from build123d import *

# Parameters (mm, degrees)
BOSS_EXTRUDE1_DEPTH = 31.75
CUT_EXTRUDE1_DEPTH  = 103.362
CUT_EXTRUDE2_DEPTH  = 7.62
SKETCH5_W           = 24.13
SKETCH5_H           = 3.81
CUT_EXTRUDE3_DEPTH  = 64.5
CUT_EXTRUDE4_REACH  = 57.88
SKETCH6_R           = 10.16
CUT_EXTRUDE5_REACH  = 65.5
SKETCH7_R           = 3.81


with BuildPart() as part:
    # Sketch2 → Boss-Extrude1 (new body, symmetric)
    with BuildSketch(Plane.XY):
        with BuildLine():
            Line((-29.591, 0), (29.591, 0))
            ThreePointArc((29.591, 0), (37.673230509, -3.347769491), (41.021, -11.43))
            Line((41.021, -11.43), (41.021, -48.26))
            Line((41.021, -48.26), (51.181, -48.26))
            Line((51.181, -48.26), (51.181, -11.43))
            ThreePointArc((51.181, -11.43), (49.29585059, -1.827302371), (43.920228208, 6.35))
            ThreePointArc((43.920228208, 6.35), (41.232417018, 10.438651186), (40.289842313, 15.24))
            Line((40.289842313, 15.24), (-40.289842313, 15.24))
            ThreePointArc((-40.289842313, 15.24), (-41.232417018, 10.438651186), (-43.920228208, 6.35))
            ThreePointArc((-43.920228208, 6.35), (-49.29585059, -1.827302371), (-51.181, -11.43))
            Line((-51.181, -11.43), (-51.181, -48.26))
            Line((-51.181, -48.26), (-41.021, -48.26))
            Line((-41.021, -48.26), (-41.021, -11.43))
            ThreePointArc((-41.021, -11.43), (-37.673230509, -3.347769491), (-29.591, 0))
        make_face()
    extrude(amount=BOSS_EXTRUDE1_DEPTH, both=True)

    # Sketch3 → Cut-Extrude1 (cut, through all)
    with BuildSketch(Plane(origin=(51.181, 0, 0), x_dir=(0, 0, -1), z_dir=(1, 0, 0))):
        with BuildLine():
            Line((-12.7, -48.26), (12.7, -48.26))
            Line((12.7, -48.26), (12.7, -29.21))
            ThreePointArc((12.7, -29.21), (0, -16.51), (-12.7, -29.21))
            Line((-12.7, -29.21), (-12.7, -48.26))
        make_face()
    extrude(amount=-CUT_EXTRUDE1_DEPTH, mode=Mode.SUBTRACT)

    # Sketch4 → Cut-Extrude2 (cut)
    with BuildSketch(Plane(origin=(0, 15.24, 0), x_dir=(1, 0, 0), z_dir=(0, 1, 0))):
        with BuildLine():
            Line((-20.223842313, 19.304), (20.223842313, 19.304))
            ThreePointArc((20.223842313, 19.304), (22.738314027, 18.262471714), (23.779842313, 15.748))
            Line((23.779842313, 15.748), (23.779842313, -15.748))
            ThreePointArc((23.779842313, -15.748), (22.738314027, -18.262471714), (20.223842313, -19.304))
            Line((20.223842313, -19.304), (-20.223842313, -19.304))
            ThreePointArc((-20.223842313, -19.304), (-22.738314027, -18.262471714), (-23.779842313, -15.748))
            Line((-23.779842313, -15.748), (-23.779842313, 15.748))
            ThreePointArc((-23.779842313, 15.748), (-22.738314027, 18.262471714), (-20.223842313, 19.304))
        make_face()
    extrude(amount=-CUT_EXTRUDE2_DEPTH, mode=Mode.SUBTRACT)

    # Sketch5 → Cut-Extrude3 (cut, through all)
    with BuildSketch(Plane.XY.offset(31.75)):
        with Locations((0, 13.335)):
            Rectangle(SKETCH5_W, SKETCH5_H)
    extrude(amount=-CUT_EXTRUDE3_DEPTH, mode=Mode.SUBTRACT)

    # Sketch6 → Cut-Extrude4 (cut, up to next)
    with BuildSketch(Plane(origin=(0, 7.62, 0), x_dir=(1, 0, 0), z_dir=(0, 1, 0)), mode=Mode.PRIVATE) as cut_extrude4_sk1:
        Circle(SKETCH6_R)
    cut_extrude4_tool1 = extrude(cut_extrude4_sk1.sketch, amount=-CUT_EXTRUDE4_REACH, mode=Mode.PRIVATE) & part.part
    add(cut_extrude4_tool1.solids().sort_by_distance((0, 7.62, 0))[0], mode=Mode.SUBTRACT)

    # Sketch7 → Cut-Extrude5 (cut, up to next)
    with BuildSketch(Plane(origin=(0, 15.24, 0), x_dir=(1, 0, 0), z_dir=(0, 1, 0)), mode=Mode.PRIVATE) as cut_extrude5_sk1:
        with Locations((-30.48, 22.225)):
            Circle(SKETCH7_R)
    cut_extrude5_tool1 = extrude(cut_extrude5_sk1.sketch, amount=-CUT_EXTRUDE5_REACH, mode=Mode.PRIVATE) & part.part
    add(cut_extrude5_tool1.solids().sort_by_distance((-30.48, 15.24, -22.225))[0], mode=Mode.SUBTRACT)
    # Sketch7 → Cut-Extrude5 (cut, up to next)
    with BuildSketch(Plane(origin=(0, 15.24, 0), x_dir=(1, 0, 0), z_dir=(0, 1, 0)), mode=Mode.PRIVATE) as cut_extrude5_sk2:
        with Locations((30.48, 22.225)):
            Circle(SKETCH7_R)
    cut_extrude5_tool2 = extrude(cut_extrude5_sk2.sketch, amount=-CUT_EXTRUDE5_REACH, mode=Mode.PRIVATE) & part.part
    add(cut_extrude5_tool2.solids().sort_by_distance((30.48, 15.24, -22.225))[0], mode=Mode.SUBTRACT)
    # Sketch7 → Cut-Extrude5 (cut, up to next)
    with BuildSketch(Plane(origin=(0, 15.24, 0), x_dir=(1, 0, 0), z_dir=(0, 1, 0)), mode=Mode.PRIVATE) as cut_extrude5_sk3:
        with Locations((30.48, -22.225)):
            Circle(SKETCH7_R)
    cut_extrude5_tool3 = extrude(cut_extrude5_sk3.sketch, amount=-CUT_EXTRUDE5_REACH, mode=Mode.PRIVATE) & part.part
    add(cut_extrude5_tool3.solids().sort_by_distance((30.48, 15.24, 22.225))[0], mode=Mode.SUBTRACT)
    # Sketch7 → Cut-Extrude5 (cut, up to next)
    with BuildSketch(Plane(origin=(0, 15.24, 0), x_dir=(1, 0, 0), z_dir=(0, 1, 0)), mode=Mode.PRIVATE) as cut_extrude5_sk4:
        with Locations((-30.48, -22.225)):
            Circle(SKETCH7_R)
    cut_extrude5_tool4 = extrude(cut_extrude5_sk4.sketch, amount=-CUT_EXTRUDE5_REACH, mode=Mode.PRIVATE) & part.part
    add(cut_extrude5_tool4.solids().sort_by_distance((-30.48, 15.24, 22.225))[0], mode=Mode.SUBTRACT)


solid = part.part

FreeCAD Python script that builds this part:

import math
import FreeCAD as App
import Part
import Sketcher
Q = App.Units.Quantity

doc = App.newDocument("Part")
body = doc.addObject("PartDesign::Body", "Body")

sketch1 = doc.addObject("Sketcher::SketchObject", "Sketch")
body.addObject(sketch1)
sketch1.AttachmentSupport = (doc.XY_Plane, [""])
sketch1.MapMode = "FlatFace"
sketch1.addGeometry([
    Part.LineSegment(App.Vector(-29.591, 0, 0), App.Vector(29.591, 0, 0)),
    Part.ArcOfCircle(Part.Circle(App.Vector(29.591, -11.43, 0), App.Vector(0, 0, 1), 11.43), math.radians(0), math.radians(90)),
    Part.LineSegment(App.Vector(41.021, -11.43, 0), App.Vector(41.021, -48.26, 0)),
    Part.LineSegment(App.Vector(41.021, -48.26, 0), App.Vector(51.181, -48.26, 0)),
    Part.LineSegment(App.Vector(51.181, -48.26, 0), App.Vector(51.181, -11.43, 0)),
    Part.ArcOfCircle(Part.Circle(App.Vector(25.781, -11.43, 0), App.Vector(0, 0, 1), 25.4), math.radians(0), math.radians(44.427004)),
    Part.ArcOfCircle(Part.Circle(App.Vector(52.989842, 15.24, 0), App.Vector(0, 0, 1), 12.7), math.radians(180), math.radians(224.427004)),
    Part.LineSegment(App.Vector(40.289842, 15.24, 0), App.Vector(-40.289842, 15.24, 0)),
    Part.ArcOfCircle(Part.Circle(App.Vector(-52.989842, 15.24, 0), App.Vector(0, 0, 1), 12.7), math.radians(-44.427004), math.radians(0)),
    Part.ArcOfCircle(Part.Circle(App.Vector(-25.781, -11.43, 0), App.Vector(0, 0, 1), 25.4), math.radians(135.572996), math.radians(180)),
    Part.LineSegment(App.Vector(-51.181, -11.43, 0), App.Vector(-51.181, -48.26, 0)),
    Part.LineSegment(App.Vector(-51.181, -48.26, 0), App.Vector(-41.021, -48.26, 0)),
    Part.LineSegment(App.Vector(-41.021, -48.26, 0), App.Vector(-41.021, -11.43, 0)),
    Part.ArcOfCircle(Part.Circle(App.Vector(-29.591, -11.43, 0), App.Vector(0, 0, 1), 11.43), math.radians(90), math.radians(180)),
], False)
sketch1.addConstraint([
    Sketcher.Constraint("Tangent", 0, 2, 1, 2),
    Sketcher.Constraint("Tangent", 1, 1, 2, 1),
    Sketcher.Constraint("Coincident", 2, 2, 3, 1),
    Sketcher.Constraint("Coincident", 3, 2, 4, 1),
    Sketcher.Constraint("Tangent", 4, 2, 5, 1),
    Sketcher.Constraint("Tangent", 5, 2, 6, 2),
    Sketcher.Constraint("Coincident", 6, 1, 7, 1),
    Sketcher.Constraint("Coincident", 7, 2, 8, 2),
    Sketcher.Constraint("Tangent", 8, 1, 9, 1),
    Sketcher.Constraint("Tangent", 9, 2, 10, 1),
    Sketcher.Constraint("Coincident", 10, 2, 11, 1),
    Sketcher.Constraint("Coincident", 11, 2, 12, 1),
    Sketcher.Constraint("Tangent", 12, 2, 13, 2),
    Sketcher.Constraint("Tangent", 13, 1, 0, 1),
    Sketcher.Constraint("Horizontal", 0),
    Sketcher.Constraint("Vertical", 2),
    Sketcher.Constraint("Horizontal", 3),
    Sketcher.Constraint("Vertical", 4),
    Sketcher.Constraint("Horizontal", 7),
    Sketcher.Constraint("Vertical", 10),
    Sketcher.Constraint("Horizontal", 11),
    Sketcher.Constraint("Vertical", 12),
    Sketcher.Constraint("Equal", 6, 8),
    Sketcher.Constraint("Equal", 5, 9),
    Sketcher.Constraint("Equal", 1, 13),
    Sketcher.Constraint("Symmetric", 0, 2, 13, 1, -1, 1),
    Sketcher.Constraint("Symmetric", 6, 3, 8, 3, -2),
    Sketcher.Constraint("Symmetric", 3, 2, 10, 2, -2),
    Sketcher.Constraint("Horizontal", 1, 3, 5, 3),
    Sketcher.Constraint("Horizontal", 8, 3, 6, 1),
    Sketcher.Constraint("Radius", 5, Q("1 in")),
    Sketcher.Constraint("Radius", 6, Q("0.5 in")),
    Sketcher.Constraint("Radius", 1, Q("0.45 in")),
    Sketcher.Constraint("DistanceX", 3, 1, 3, 2, Q("0.4 in")),
    Sketcher.Constraint("DistanceX", 0, 1, 0, 2, Q("2.33 in")),
    Sketcher.Constraint("DistanceY", 2, 2, 2, 1, Q("1.45 in")),
    Sketcher.Constraint("DistanceY", -1, 1, 6, 3, Q("0.6 in")),
])
pad1 = doc.addObject("PartDesign::Pad", "Pad")
body.addObject(pad1)
pad1.Profile = sketch1
pad1.Length = Q("2.5 in")
pad1.Midplane = True

sketch2 = doc.addObject("Sketcher::SketchObject", "Sketch001")
body.addObject(sketch2)
sketch2.AttachmentSupport = (doc.YZ_Plane, [""])
sketch2.MapMode = "FlatFace"
sketch2.AttachmentOffset = App.Placement(App.Vector(0, 0, 2.015 * 25.4), App.Rotation())
sketch2.addGeometry([
    Part.LineSegment(App.Vector(-48.26, 12.7, 0), App.Vector(-48.26, -12.7, 0)),
    Part.LineSegment(App.Vector(-48.26, -12.7, 0), App.Vector(-29.21, -12.7, 0)),
    Part.ArcOfCircle(Part.Circle(App.Vector(-29.21, 0, 0), App.Vector(0, 0, 1), 12.7), math.radians(-90), math.radians(90)),
    Part.LineSegment(App.Vector(-29.21, 12.7, 0), App.Vector(-48.26, 12.7, 0)),
], False)
sketch2.addConstraint([
    Sketcher.Constraint("Coincident", 0, 2, 1, 1),
    Sketcher.Constraint("Tangent", 1, 2, 2, 1),
    Sketcher.Constraint("Tangent", 2, 2, 3, 1),
    Sketcher.Constraint("Coincident", 3, 2, 0, 1),
    Sketcher.Constraint("Vertical", 0),
    Sketcher.Constraint("Horizontal", 1),
    Sketcher.Constraint("Horizontal", 3),
    Sketcher.Constraint("PointOnObject", 2, 3, -1),
    Sketcher.Constraint("Radius", 2, Q("0.5 in")),
    Sketcher.Constraint("DistanceX", 1, 1, 1, 2, Q("0.75 in")),
    Sketcher.Constraint("DistanceX", 0, 2, -1, 1, Q("1.9 in")),
])
pocket1 = doc.addObject("PartDesign::Pocket", "Pocket")
body.addObject(pocket1)
pocket1.Profile = sketch2
pocket1.Type = "ThroughAll"

sketch3 = doc.addObject("Sketcher::SketchObject", "Sketch002")
body.addObject(sketch3)
sketch3.AttachmentSupport = (doc.XZ_Plane, [""])
sketch3.MapMode = "FlatFace"
sketch3.AttachmentOffset = App.Placement(App.Vector(0, 0, -0.6 * 25.4), App.Rotation())
sketch3.addGeometry([
    Part.LineSegment(App.Vector(20.223842, -19.304, 0), App.Vector(-20.223842, -19.304, 0)),
    Part.ArcOfCircle(Part.Circle(App.Vector(-20.223842, -15.748, 0), App.Vector(0, 0, 1), 3.556), math.radians(180), math.radians(270)),
    Part.LineSegment(App.Vector(-23.779842, -15.748, 0), App.Vector(-23.779842, 15.748, 0)),
    Part.ArcOfCircle(Part.Circle(App.Vector(-20.223842, 15.748, 0), App.Vector(0, 0, 1), 3.556), math.radians(90), math.radians(180)),
    Part.LineSegment(App.Vector(-20.223842, 19.304, 0), App.Vector(20.223842, 19.304, 0)),
    Part.ArcOfCircle(Part.Circle(App.Vector(20.223842, 15.748, 0), App.Vector(0, 0, 1), 3.556), math.radians(0), math.radians(90)),
    Part.LineSegment(App.Vector(23.779842, 15.748, 0), App.Vector(23.779842, -15.748, 0)),
    Part.ArcOfCircle(Part.Circle(App.Vector(20.223842, -15.748, 0), App.Vector(0, 0, 1), 3.556), math.radians(-90), math.radians(0)),
], False)
sketch3.addConstraint([
    Sketcher.Constraint("Tangent", 0, 2, 1, 2),
    Sketcher.Constraint("Tangent", 1, 1, 2, 1),
    Sketcher.Constraint("Tangent", 2, 2, 3, 2),
    Sketcher.Constraint("Tangent", 3, 1, 4, 1),
    Sketcher.Constraint("Tangent", 4, 2, 5, 2),
    Sketcher.Constraint("Tangent", 5, 1, 6, 1),
    Sketcher.Constraint("Tangent", 6, 2, 7, 2),
    Sketcher.Constraint("Tangent", 7, 1, 0, 1),
    Sketcher.Constraint("Horizontal", 0),
    Sketcher.Constraint("Vertical", 2),
    Sketcher.Constraint("Horizontal", 4),
    Sketcher.Constraint("Vertical", 6),
    Sketcher.Constraint("Equal", 1, 3),
    Sketcher.Constraint("Equal", 3, 5),
    Sketcher.Constraint("Equal", 5, 7),
    Sketcher.Constraint("Symmetric", 1, 3, 5, 3, -1, 1),
    Sketcher.Constraint("Radius", 1, Q("0.14 in")),
    Sketcher.Constraint("DistanceY", 2, 1, 2, 2, Q("1.24 in")),
    Sketcher.Constraint("DistanceX", 0, 2, 0, 1, Q("40.447685 mm")),
])
pocket2 = doc.addObject("PartDesign::Pocket", "Pocket001")
body.addObject(pocket2)
pocket2.Profile = sketch3
pocket2.Length = Q("0.3 in")
pocket2.Reversed = True

sketch4 = doc.addObject("Sketcher::SketchObject", "Sketch003")
body.addObject(sketch4)
sketch4.AttachmentSupport = (doc.XY_Plane, [""])
sketch4.MapMode = "FlatFace"
sketch4.AttachmentOffset = App.Placement(App.Vector(0, 0, 1.25 * 25.4), App.Rotation())
sketch4.addGeometry([
    Part.LineSegment(App.Vector(-12.065, 15.24, 0), App.Vector(-12.065, 11.43, 0)),
    Part.LineSegment(App.Vector(-12.065, 11.43, 0), App.Vector(12.065, 11.43, 0)),
    Part.LineSegment(App.Vector(12.065, 11.43, 0), App.Vector(12.065, 15.24, 0)),
    Part.LineSegment(App.Vector(12.065, 15.24, 0), App.Vector(-12.065, 15.24, 0)),
], False)
sketch4.addConstraint([
    Sketcher.Constraint("Coincident", 0, 2, 1, 1),
    Sketcher.Constraint("Coincident", 1, 2, 2, 1),
    Sketcher.Constraint("Coincident", 2, 2, 3, 1),
    Sketcher.Constraint("Coincident", 3, 2, 0, 1),
    Sketcher.Constraint("Vertical", 0),
    Sketcher.Constraint("Horizontal", 1),
    Sketcher.Constraint("Vertical", 2),
    Sketcher.Constraint("Horizontal", 3),
    Sketcher.Constraint("DistanceX", 1, 1, 1, 2, Q("0.95 in")),
    Sketcher.Constraint("DistanceY", 0, 2, 0, 1, Q("0.15 in")),
    Sketcher.Constraint("DistanceY", -1, 1, 2, 2, Q("0.6 in")),
    Sketcher.Constraint("DistanceX", 0, 2, -1, 1, Q("0.475 in")),
])
pocket3 = doc.addObject("PartDesign::Pocket", "Pocket002")
body.addObject(pocket3)
pocket3.Profile = sketch4
pocket3.Type = "ThroughAll"

sketch5 = doc.addObject("Sketcher::SketchObject", "Sketch004")
body.addObject(sketch5)
sketch5.AttachmentSupport = (doc.XZ_Plane, [""])
sketch5.MapMode = "FlatFace"
sketch5.AttachmentOffset = App.Placement(App.Vector(0, 0, -0.3 * 25.4), App.Rotation())
sketch5.addGeometry(Part.Circle(App.Vector(0, 0, 0), App.Vector(0, 0, 1), 10.16), False)
sketch5.addConstraint([
    Sketcher.Constraint("Coincident", 0, 3, -1, 1),
    Sketcher.Constraint("Diameter", 0, Q("0.8 in")),
])
pocket4 = doc.addObject("PartDesign::Pocket", "Pocket003")
body.addObject(pocket4)
pocket4.Profile = sketch5
pocket4.Type = "UpToFirst"
pocket4.Reversed = True

sketch6 = doc.addObject("Sketcher::SketchObject", "Sketch005")
body.addObject(sketch6)
sketch6.AttachmentSupport = (doc.XZ_Plane, [""])
sketch6.MapMode = "FlatFace"
sketch6.AttachmentOffset = App.Placement(App.Vector(0, 0, -0.6 * 25.4), App.Rotation())
sketch6.addGeometry(Part.Circle(App.Vector(-30.48, -22.225, 0), App.Vector(0, 0, 1), 3.81), False)
sketch6.addConstraint([
    Sketcher.Constraint("Diameter", 0, Q("0.3 in")),
    Sketcher.Constraint("DistanceX", 0, 3, -1, 1, Q("1.2 in")),
    Sketcher.Constraint("DistanceY", 0, 3, -1, 1, Q("0.875 in")),
])
pocket5 = doc.addObject("PartDesign::Pocket", "Pocket004")
body.addObject(pocket5)
pocket5.Profile = sketch6
pocket5.Type = "UpToFirst"
pocket5.Reversed = True

sketch7 = doc.addObject("Sketcher::SketchObject", "Sketch006")
body.addObject(sketch7)
sketch7.AttachmentSupport = (doc.XZ_Plane, [""])
sketch7.MapMode = "FlatFace"
sketch7.AttachmentOffset = App.Placement(App.Vector(0, 0, -0.6 * 25.4), App.Rotation())
sketch7.addGeometry(Part.Circle(App.Vector(30.48, -22.225, 0), App.Vector(0, 0, 1), 3.81), False)
sketch7.addConstraint([
    Sketcher.Constraint("Diameter", 0, Q("0.3 in")),
    Sketcher.Constraint("DistanceX", -1, 1, 0, 3, Q("1.2 in")),
    Sketcher.Constraint("DistanceY", 0, 3, -1, 1, Q("0.875 in")),
])
pocket6 = doc.addObject("PartDesign::Pocket", "Pocket005")
body.addObject(pocket6)
pocket6.Profile = sketch7
pocket6.Type = "UpToFirst"
pocket6.Reversed = True

sketch8 = doc.addObject("Sketcher::SketchObject", "Sketch007")
body.addObject(sketch8)
sketch8.AttachmentSupport = (doc.XZ_Plane, [""])
sketch8.MapMode = "FlatFace"
sketch8.AttachmentOffset = App.Placement(App.Vector(0, 0, -0.6 * 25.4), App.Rotation())
sketch8.addGeometry(Part.Circle(App.Vector(30.48, 22.225, 0), App.Vector(0, 0, 1), 3.81), False)
sketch8.addConstraint([
    Sketcher.Constraint("Diameter", 0, Q("0.3 in")),
    Sketcher.Constraint("DistanceX", -1, 1, 0, 3, Q("1.2 in")),
    Sketcher.Constraint("DistanceY", -1, 1, 0, 3, Q("0.875 in")),
])
pocket7 = doc.addObject("PartDesign::Pocket", "Pocket006")
body.addObject(pocket7)
pocket7.Profile = sketch8
pocket7.Type = "UpToFirst"
pocket7.Reversed = True

sketch9 = doc.addObject("Sketcher::SketchObject", "Sketch008")
body.addObject(sketch9)
sketch9.AttachmentSupport = (doc.XZ_Plane, [""])
sketch9.MapMode = "FlatFace"
sketch9.AttachmentOffset = App.Placement(App.Vector(0, 0, -0.6 * 25.4), App.Rotation())
sketch9.addGeometry(Part.Circle(App.Vector(-30.48, 22.225, 0), App.Vector(0, 0, 1), 3.81), False)
sketch9.addConstraint([
    Sketcher.Constraint("Diameter", 0, Q("0.3 in")),
    Sketcher.Constraint("DistanceX", 0, 3, -1, 1, Q("1.2 in")),
    Sketcher.Constraint("DistanceY", -1, 1, 0, 3, Q("0.875 in")),
])
pocket8 = doc.addObject("PartDesign::Pocket", "Pocket007")
body.addObject(pocket8)
pocket8.Profile = sketch9
pocket8.Type = "UpToFirst"
pocket8.Reversed = True

doc.recompute()
